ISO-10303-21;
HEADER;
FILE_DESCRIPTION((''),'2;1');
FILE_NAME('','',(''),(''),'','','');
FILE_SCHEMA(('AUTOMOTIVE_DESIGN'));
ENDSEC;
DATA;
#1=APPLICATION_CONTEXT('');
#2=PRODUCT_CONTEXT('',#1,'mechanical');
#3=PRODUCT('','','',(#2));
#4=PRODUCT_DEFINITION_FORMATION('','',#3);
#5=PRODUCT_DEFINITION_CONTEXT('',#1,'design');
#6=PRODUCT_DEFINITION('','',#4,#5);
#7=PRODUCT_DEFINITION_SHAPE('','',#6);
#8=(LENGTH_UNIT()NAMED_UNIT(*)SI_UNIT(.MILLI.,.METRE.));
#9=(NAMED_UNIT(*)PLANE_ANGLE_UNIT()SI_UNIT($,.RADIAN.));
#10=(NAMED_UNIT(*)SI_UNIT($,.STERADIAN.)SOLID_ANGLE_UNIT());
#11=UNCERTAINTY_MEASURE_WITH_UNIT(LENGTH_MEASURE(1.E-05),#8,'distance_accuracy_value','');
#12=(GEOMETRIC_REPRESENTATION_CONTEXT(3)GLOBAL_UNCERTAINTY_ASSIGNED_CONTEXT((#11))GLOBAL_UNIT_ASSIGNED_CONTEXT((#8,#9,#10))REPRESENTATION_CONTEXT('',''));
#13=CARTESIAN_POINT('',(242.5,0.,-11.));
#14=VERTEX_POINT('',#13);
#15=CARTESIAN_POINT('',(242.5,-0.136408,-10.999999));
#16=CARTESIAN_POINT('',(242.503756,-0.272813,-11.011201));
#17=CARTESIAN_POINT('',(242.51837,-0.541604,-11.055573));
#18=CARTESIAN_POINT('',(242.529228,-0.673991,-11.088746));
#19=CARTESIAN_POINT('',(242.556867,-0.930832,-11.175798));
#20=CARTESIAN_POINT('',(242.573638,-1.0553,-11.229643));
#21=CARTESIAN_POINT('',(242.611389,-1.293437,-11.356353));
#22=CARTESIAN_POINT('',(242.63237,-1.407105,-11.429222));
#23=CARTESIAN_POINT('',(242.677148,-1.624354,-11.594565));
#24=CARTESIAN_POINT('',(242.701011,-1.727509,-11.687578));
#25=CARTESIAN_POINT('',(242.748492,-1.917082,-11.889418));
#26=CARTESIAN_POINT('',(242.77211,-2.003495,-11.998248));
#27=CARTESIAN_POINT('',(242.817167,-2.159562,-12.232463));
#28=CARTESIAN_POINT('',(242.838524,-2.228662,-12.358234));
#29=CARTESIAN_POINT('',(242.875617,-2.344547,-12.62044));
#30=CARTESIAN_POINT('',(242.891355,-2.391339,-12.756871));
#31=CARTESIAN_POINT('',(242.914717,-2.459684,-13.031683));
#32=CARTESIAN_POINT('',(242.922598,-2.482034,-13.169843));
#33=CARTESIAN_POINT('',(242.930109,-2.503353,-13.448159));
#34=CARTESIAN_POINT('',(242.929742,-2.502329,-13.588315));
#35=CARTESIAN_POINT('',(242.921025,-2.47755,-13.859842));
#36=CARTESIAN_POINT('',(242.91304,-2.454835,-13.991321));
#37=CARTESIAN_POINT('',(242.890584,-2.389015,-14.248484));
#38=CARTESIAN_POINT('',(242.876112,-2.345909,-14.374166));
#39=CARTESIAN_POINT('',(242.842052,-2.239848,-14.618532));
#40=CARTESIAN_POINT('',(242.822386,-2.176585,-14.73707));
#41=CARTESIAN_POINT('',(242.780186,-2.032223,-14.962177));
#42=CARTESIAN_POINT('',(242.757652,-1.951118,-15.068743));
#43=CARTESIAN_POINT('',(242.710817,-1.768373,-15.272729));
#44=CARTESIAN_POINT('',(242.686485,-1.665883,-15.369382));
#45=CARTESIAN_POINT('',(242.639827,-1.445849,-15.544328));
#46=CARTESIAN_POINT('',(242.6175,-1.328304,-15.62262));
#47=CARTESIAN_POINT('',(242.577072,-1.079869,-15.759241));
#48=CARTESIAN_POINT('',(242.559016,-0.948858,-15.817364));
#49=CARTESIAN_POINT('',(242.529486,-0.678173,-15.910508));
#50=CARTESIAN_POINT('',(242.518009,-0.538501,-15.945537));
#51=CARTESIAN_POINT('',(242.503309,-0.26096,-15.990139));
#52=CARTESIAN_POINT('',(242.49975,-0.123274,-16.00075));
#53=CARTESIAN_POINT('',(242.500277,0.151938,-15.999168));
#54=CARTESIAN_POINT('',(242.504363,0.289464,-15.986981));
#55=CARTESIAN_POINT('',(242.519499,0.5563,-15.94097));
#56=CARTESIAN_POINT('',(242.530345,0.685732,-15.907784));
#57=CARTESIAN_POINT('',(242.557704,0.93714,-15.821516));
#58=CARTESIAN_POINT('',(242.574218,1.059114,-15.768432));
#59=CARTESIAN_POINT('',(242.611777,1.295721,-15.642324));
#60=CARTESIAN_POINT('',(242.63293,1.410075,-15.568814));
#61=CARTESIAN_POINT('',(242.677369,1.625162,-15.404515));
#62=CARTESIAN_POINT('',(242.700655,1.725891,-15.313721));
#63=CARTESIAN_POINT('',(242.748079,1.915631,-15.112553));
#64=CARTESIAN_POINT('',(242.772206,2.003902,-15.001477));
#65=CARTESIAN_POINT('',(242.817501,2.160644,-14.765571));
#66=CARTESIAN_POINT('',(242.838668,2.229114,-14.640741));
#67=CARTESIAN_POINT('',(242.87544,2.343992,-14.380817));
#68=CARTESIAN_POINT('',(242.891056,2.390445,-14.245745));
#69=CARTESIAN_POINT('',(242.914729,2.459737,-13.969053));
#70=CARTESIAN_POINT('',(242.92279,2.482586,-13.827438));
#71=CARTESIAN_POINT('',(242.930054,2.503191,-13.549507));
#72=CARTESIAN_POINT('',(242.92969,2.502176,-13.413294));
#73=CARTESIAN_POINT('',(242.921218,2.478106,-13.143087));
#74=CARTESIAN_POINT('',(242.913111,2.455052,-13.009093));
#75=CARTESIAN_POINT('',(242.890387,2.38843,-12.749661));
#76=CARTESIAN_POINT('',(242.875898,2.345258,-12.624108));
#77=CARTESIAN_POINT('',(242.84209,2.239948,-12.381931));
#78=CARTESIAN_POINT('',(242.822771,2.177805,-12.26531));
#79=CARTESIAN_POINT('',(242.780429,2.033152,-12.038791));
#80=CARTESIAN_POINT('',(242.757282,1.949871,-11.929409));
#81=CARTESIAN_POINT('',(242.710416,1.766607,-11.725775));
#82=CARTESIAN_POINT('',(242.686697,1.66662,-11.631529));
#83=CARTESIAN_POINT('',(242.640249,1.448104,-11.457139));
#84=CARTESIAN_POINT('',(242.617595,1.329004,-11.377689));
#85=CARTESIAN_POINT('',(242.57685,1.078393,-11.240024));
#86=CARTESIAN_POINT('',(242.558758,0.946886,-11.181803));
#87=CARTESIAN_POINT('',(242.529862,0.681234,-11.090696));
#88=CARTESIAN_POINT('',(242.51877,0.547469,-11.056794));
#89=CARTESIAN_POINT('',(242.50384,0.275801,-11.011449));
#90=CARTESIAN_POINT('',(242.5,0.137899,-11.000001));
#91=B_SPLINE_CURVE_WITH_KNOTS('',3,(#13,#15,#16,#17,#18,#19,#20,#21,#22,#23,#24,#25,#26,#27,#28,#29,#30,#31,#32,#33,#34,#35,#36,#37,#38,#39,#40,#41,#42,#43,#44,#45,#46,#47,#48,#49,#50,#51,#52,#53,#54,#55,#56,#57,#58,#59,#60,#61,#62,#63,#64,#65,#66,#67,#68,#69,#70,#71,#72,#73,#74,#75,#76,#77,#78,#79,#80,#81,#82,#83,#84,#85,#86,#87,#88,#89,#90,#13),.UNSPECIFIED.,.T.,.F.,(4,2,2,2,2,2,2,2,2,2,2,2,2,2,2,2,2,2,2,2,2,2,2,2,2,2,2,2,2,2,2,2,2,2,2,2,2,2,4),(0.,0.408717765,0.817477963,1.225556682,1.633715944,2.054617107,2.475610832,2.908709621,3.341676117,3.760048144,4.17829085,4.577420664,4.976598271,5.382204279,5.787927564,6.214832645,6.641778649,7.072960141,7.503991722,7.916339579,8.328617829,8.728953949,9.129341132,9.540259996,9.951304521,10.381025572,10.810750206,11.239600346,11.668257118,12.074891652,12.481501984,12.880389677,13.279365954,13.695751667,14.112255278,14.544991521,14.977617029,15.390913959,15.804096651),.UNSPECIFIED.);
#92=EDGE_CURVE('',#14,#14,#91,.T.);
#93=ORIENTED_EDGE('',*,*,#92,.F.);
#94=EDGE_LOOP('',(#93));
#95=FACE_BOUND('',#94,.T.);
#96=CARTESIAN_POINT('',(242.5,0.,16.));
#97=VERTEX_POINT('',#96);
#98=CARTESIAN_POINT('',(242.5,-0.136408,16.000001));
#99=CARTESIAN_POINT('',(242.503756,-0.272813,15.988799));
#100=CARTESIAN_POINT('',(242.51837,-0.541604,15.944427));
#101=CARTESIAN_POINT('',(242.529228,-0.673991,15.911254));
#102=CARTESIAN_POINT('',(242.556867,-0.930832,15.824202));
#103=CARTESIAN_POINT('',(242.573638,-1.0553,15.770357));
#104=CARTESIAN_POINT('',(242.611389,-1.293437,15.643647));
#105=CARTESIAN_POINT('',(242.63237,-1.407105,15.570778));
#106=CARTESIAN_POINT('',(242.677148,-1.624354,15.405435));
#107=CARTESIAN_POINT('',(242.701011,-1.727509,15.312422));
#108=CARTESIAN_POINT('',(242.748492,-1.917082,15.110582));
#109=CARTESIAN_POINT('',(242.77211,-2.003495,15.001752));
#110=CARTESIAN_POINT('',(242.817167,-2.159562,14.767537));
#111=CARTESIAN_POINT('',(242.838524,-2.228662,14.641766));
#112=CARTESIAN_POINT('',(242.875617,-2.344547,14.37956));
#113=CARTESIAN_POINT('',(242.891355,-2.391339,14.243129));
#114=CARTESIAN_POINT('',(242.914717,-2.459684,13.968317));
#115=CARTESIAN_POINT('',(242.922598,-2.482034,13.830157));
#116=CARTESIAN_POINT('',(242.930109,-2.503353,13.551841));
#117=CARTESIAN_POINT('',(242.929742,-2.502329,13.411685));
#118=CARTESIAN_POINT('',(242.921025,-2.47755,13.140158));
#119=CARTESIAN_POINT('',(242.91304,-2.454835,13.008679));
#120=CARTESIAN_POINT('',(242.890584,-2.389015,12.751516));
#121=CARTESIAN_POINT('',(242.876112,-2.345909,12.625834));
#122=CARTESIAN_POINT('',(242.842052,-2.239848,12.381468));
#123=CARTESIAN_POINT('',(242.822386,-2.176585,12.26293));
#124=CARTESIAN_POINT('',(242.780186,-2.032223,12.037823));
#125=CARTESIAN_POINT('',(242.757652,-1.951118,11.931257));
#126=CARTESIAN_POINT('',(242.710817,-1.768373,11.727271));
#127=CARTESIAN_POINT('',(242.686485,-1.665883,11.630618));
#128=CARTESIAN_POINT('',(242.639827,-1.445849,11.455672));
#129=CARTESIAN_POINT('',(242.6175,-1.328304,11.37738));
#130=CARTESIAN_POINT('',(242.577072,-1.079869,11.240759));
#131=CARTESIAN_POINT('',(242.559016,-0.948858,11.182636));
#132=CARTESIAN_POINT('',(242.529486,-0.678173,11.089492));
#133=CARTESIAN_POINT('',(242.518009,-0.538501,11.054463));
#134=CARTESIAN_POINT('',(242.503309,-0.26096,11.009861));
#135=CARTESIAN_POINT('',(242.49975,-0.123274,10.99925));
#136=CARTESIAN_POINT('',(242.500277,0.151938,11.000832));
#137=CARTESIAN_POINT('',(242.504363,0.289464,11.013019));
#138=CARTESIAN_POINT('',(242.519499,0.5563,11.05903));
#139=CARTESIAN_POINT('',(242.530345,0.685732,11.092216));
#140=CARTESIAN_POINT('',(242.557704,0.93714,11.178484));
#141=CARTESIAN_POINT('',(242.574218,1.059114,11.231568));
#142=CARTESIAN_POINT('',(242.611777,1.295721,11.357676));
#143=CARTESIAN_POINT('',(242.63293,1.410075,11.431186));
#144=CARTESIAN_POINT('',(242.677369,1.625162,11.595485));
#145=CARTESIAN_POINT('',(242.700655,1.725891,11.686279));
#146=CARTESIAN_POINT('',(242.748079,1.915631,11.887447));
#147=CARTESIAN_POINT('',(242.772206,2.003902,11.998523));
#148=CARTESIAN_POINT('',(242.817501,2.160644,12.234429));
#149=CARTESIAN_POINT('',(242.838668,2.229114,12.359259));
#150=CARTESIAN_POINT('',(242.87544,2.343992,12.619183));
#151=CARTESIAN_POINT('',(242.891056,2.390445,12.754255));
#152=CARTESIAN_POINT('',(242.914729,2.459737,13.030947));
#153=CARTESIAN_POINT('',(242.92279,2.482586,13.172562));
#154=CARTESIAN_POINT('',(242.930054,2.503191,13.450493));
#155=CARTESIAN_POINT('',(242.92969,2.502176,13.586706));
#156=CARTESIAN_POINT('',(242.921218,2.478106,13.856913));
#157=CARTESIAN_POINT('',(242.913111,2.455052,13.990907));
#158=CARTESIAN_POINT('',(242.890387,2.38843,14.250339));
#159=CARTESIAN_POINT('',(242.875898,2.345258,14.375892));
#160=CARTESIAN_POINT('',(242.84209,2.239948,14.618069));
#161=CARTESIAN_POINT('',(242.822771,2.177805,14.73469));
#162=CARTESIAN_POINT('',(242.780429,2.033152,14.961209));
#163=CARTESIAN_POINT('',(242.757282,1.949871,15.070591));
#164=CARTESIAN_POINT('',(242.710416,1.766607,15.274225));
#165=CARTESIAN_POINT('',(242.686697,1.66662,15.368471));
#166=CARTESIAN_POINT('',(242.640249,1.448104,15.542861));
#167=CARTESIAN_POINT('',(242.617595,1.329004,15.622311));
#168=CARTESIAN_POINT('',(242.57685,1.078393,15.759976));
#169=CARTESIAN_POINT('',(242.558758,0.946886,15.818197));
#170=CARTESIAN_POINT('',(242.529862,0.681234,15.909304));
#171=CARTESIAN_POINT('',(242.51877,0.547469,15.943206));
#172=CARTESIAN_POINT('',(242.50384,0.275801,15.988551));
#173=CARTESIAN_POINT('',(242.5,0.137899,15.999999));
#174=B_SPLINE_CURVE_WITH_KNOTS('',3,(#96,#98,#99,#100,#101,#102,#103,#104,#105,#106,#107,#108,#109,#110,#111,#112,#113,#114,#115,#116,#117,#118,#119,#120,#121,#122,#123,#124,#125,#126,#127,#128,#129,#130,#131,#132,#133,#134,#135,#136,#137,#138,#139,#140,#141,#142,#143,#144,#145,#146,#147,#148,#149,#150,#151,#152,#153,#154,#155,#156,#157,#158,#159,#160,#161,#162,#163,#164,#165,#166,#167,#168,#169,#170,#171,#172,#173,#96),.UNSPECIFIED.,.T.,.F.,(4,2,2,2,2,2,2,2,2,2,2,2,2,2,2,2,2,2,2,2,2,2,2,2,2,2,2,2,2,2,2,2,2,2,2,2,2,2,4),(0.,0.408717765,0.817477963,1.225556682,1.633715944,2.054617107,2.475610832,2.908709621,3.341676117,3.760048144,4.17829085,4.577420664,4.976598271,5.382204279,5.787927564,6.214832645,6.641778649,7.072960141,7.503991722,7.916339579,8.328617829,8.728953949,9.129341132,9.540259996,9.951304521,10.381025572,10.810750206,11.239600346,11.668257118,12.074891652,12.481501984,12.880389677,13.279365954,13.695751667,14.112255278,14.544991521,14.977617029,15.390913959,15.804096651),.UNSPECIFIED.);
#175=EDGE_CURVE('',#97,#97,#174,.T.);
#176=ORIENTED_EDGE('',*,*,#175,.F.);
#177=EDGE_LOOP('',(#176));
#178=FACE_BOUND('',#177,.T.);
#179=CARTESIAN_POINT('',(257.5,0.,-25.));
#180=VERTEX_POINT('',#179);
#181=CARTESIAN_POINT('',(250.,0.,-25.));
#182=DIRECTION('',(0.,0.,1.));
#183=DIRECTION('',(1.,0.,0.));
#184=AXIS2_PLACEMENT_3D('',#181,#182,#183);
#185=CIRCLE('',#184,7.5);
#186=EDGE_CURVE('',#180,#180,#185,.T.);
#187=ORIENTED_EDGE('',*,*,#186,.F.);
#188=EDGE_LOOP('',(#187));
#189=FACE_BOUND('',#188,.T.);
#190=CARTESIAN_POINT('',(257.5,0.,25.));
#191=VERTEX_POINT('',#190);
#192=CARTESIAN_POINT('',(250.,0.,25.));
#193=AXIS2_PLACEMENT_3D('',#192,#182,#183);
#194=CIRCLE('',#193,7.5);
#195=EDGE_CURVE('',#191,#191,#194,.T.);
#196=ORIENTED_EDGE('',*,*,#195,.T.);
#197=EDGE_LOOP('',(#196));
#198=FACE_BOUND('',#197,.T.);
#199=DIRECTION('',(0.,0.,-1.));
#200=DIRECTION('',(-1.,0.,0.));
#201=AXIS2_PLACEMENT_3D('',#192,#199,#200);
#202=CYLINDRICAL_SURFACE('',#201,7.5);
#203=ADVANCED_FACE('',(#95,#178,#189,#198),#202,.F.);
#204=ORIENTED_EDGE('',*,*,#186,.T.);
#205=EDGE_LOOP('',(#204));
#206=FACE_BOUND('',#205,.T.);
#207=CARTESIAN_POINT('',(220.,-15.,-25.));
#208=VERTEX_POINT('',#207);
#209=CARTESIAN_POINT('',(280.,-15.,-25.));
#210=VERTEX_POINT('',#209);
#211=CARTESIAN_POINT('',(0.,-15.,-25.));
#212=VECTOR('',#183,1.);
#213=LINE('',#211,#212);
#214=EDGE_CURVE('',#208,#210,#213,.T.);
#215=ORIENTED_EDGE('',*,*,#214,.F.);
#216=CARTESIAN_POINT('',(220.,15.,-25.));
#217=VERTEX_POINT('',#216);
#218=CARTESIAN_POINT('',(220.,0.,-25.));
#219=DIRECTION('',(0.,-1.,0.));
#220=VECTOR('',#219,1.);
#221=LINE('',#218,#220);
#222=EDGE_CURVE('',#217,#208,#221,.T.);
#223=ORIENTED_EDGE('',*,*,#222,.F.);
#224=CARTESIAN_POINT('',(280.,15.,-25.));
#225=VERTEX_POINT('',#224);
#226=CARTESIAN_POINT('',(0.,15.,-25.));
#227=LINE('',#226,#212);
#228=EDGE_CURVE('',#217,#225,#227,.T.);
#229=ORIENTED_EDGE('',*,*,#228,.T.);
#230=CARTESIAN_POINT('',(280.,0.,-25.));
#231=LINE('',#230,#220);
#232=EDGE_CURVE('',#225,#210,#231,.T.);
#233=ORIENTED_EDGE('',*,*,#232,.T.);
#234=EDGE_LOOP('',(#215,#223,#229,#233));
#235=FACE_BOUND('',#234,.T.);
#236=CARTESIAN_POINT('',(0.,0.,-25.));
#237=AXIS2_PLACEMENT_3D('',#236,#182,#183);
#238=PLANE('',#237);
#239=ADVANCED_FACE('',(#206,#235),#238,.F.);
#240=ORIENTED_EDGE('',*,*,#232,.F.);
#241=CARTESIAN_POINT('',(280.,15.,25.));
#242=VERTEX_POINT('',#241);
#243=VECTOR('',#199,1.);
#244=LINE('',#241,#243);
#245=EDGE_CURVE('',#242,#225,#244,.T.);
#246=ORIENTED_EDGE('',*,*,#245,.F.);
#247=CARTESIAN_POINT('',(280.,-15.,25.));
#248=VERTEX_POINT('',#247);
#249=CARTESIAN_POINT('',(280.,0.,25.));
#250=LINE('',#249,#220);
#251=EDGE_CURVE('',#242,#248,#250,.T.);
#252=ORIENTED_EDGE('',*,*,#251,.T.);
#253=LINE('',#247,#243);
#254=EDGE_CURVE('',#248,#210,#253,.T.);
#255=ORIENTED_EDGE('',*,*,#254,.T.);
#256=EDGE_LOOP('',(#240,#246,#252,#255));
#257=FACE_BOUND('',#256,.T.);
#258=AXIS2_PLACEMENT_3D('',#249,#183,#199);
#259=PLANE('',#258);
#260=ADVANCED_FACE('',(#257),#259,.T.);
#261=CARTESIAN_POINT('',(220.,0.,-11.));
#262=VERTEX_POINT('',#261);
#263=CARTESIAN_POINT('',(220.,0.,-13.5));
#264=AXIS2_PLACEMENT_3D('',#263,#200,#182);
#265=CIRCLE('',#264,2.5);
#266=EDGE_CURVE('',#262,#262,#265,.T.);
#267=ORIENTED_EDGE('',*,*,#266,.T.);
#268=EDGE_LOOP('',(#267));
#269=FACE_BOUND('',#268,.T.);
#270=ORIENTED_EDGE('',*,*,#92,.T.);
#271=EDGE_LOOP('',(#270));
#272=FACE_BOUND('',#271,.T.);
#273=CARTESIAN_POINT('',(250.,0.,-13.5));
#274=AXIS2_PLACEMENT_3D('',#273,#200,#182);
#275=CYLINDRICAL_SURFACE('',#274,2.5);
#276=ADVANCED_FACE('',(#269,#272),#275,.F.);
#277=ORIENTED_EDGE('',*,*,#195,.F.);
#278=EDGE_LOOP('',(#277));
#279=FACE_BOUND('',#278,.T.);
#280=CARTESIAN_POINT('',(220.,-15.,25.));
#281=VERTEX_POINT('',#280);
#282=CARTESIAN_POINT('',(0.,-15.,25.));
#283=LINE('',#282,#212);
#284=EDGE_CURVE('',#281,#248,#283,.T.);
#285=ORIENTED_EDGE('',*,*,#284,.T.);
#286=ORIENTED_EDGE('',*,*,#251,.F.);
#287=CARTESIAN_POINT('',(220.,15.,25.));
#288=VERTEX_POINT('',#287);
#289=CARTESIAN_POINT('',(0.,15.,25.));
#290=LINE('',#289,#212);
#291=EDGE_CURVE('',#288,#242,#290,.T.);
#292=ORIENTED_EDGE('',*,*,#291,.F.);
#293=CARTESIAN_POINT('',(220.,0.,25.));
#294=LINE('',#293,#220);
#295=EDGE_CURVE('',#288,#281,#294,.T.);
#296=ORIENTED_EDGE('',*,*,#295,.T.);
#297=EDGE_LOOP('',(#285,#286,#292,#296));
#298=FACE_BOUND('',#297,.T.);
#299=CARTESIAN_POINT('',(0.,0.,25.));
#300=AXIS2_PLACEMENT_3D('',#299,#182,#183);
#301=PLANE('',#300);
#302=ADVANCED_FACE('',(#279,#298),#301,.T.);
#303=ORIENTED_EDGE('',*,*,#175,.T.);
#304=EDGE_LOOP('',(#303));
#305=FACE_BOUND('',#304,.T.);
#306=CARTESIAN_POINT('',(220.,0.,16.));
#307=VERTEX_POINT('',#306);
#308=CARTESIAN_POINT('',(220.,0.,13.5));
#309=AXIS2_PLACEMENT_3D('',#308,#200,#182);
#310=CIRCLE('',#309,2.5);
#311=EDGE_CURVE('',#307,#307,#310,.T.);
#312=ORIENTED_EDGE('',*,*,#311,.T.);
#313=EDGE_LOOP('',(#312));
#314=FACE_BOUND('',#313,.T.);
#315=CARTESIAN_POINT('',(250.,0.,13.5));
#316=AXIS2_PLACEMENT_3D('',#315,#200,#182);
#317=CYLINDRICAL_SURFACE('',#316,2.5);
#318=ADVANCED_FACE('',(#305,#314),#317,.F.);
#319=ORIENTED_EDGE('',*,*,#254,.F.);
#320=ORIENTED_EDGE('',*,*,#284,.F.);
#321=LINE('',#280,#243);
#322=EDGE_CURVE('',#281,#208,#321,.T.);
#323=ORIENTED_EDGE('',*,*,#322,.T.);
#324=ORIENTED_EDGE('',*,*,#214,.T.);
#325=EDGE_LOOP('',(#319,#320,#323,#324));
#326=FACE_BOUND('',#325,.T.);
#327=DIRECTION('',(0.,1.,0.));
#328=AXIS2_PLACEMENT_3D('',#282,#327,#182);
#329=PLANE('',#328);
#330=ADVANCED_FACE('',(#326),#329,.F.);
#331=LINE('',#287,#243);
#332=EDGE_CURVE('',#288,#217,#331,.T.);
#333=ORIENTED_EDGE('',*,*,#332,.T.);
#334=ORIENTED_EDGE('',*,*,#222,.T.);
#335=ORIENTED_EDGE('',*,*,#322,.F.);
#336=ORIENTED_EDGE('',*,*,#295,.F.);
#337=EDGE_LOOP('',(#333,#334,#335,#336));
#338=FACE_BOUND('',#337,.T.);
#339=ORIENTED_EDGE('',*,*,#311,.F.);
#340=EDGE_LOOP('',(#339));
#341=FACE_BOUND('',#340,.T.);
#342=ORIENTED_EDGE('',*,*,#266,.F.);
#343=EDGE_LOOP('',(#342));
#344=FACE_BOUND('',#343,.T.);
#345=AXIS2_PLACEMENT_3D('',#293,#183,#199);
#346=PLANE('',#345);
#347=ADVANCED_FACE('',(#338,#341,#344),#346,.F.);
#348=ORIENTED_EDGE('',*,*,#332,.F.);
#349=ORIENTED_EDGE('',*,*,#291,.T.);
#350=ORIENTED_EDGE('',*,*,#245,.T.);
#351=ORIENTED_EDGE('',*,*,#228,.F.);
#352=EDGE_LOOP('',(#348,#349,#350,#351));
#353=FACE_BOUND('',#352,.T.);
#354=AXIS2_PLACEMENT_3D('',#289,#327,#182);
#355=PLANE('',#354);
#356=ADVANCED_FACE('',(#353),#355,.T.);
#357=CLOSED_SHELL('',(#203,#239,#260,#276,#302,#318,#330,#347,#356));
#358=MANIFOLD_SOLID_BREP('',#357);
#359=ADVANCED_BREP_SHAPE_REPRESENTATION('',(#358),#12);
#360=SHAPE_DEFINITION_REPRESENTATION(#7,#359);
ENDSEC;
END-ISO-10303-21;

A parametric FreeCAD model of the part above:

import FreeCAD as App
import Part
import Sketcher
from FreeCAD import Vector
Q = App.Units.Quantity


def add_polygon(sketch, points):
    """Adds a closed chain of lines whose ends are joined by coincident constraints."""
    first, n = sketch.GeometryCount, len(points)
    for a, b in zip(points, points[1:] + points[:1]):
        sketch.addGeometry(Part.LineSegment(App.Vector(*a, 0), App.Vector(*b, 0)), False)
    for i in range(n):
        sketch.addConstraint(Sketcher.Constraint("Coincident", first + i, 2, first + (i + 1) % n, 1))

doc = App.newDocument("Part")
body = doc.addObject("PartDesign::Body", "Body")

# Sketch on XY plane
sketch1 = body.newObject("Sketcher::SketchObject", "Sketch")
sketch1.AttachmentSupport = (doc.getObject("XY_Plane"), [""])
sketch1.MapMode = "FlatFace"
add_polygon(sketch1, [(220, 15), (220, -15), (280, -15), (280, 15)])  # lines 0-3
sketch1.addGeometry(Part.Circle(Vector(250, 0, 0), Vector(0, 0, 1), 8), False)  # 4
sketch1.addConstraint(Sketcher.Constraint("Vertical", 0))
sketch1.addConstraint(Sketcher.Constraint("Horizontal", 1))
sketch1.addConstraint(Sketcher.Constraint("Vertical", 2))
sketch1.addConstraint(Sketcher.Constraint("Horizontal", 3))
sketch1.addConstraint(Sketcher.Constraint("PointOnObject", 4, 3, -1))
sketch1.addConstraint(Sketcher.Constraint("Diameter", 4, Q("15 mm")))
sketch1.addConstraint(Sketcher.Constraint("DistanceX", 1, 1, 1, 2, Q("60 mm")))
sketch1.addConstraint(Sketcher.Constraint("DistanceY", 0, 2, 0, 1, Q("30 mm")))
sketch1.addConstraint(Sketcher.Constraint("DistanceX", -1, 1, 4, 3, Q("250 mm")))
sketch1.addConstraint(Sketcher.Constraint("DistanceX", -1, 1, 0, 2, Q("220 mm")))
sketch1.addConstraint(Sketcher.Constraint("DistanceY", 0, 2, -1, 1, Q("15 mm")))
pad1 = body.newObject("PartDesign::Pad", "Pad")
pad1.Profile = sketch1
pad1.Length = 50
pad1.Midplane = True

# Sketch on YZ plane
sketch2 = body.newObject("Sketcher::SketchObject", "Sketch001")
sketch2.AttachmentSupport = (doc.getObject("YZ_Plane"), [""])
sketch2.MapMode = "FlatFace"
sketch2.AttachmentOffset = App.Placement(Vector(0, 0, 220), App.Rotation())
sketch2.addGeometry(Part.Circle(Vector(0, 13.5, 0), Vector(0, 0, 1), 2.5), False)
sketch2.addGeometry(Part.Circle(Vector(0, -13.5, 0), Vector(0, 0, 1), 2.5), False)
sketch2.addConstraint(Sketcher.Constraint("Equal", 0, 1))
sketch2.addConstraint(Sketcher.Constraint("Symmetric", 0, 3, 1, 3, -1, 1))
sketch2.addConstraint(Sketcher.Constraint("PointOnObject", 0, 3, -2))
sketch2.addConstraint(Sketcher.Constraint("Diameter", 0, Q("5 mm")))
sketch2.addConstraint(Sketcher.Constraint("DistanceY", 1, 3, 0, 3, Q("27 mm")))
pocket1 = body.newObject("PartDesign::Pocket", "Pocket")
pocket1.Profile = sketch2
pocket1.Length = 30
pocket1.Reversed = True

doc.recompute()
